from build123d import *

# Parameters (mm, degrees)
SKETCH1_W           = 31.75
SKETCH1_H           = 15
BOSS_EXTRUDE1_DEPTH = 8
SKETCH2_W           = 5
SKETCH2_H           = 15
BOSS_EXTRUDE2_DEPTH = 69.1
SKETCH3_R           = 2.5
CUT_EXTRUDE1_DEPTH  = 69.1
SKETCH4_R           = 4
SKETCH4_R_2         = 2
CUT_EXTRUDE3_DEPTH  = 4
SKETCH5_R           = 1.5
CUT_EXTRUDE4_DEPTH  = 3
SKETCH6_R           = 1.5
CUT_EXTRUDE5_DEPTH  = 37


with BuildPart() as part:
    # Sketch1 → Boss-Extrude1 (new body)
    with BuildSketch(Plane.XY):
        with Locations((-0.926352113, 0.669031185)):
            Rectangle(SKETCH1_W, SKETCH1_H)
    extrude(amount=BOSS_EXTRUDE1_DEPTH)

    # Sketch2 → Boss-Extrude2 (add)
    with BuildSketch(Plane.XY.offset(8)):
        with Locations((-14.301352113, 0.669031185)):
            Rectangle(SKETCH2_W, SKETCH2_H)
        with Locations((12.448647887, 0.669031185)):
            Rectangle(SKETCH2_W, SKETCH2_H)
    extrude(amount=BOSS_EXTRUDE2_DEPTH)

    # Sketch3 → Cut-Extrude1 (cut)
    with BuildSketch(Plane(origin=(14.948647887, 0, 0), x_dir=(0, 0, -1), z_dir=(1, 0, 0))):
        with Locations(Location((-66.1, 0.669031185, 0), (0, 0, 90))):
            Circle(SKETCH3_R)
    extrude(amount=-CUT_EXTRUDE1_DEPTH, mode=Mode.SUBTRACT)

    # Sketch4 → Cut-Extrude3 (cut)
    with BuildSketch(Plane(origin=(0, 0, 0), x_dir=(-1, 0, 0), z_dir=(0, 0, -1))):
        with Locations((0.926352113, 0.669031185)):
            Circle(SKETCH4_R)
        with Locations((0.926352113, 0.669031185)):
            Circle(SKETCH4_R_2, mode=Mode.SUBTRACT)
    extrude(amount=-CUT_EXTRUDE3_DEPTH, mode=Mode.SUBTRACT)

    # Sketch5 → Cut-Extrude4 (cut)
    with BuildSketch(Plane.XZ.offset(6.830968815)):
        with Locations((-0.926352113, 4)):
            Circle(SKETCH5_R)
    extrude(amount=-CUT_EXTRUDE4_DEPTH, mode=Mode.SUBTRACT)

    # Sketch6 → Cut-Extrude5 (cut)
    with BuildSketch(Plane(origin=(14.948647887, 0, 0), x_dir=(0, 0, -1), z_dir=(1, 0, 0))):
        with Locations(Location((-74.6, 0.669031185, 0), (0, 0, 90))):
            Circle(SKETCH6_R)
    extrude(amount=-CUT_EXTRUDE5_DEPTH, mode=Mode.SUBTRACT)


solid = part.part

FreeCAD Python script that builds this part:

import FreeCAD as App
import Part
import Sketcher
from FreeCAD import Vector
Q = App.Units.Quantity

doc = App.newDocument("Part")
body = doc.addObject("PartDesign::Body", "Body")

# Sketch on XY plane
sketch1 = doc.addObject("Sketcher::SketchObject", "Sketch")
body.addObject(sketch1)
sketch1.AttachmentSupport = (doc.XY_Plane, [""])
sketch1.MapMode = "FlatFace"
sketch1.addGeometry(Part.LineSegment(Vector(-17, 8, 0), Vector(-17, -7, 0)), False)
sketch1.addGeometry(Part.LineSegment(Vector(-17, -7, 0), Vector(15, -7, 0)), False)
sketch1.addGeometry(Part.LineSegment(Vector(15, -7, 0), Vector(15, 8, 0)), False)
sketch1.addGeometry(Part.LineSegment(Vector(15, 8, 0), Vector(-17, 8, 0)), False)
sketch1.addConstraint(Sketcher.Constraint("Coincident", 0, 2, 1, 1))
sketch1.addConstraint(Sketcher.Constraint("Coincident", 1, 2, 2, 1))
sketch1.addConstraint(Sketcher.Constraint("Coincident", 2, 2, 3, 1))
sketch1.addConstraint(Sketcher.Constraint("Coincident", 3, 2, 0, 1))
sketch1.addConstraint(Sketcher.Constraint("Vertical", 0))
sketch1.addConstraint(Sketcher.Constraint("Horizontal", 1))
sketch1.addConstraint(Sketcher.Constraint("Vertical", 2))
sketch1.addConstraint(Sketcher.Constraint("Horizontal", 3))
sketch1.addConstraint(Sketcher.Constraint("DistanceY", 0, 2, 0, 1, Q("15 mm")))
sketch1.addConstraint(Sketcher.Constraint("DistanceX", 1, 1, 1, 2, Q("31.75 mm")))
sketch1.addConstraint(Sketcher.Constraint("DistanceY", 0, 2, -1, 1, Q("6.830969 mm")))
sketch1.addConstraint(Sketcher.Constraint("DistanceX", 0, 2, -1, 1, Q("16.801352 mm")))
pad1 = doc.addObject("PartDesign::Pad", "Pad")
body.addObject(pad1)
pad1.Profile = sketch1
pad1.Length = 8

# Sketch on XY plane
sketch2 = doc.addObject("Sketcher::SketchObject", "Sketch001")
body.addObject(sketch2)
sketch2.AttachmentSupport = (doc.XY_Plane, [""])
sketch2.MapMode = "FlatFace"
sketch2.AttachmentOffset = App.Placement(Vector(0, 0, 8), App.Rotation())
sketch2.addGeometry(Part.LineSegment(Vector(-17, 8, 0), Vector(-17, -7, 0)), False)
sketch2.addGeometry(Part.LineSegment(Vector(-17, -7, 0), Vector(-12, -7, 0)), False)
sketch2.addGeometry(Part.LineSegment(Vector(-12, -7, 0), Vector(-12, 8, 0)), False)
sketch2.addGeometry(Part.LineSegment(Vector(-12, 8, 0), Vector(-17, 8, 0)), False)
sketch2.addGeometry(Part.LineSegment(Vector(10, 8, 0), Vector(10, -7, 0)), False)
sketch2.addGeometry(Part.LineSegment(Vector(10, -7, 0), Vector(15, -7, 0)), False)
sketch2.addGeometry(Part.LineSegment(Vector(15, -7, 0), Vector(15, 8, 0)), False)
sketch2.addGeometry(Part.LineSegment(Vector(15, 8, 0), Vector(10, 8, 0)), False)
sketch2.addConstraint(Sketcher.Constraint("Coincident", 0, 2, 1, 1))
sketch2.addConstraint(Sketcher.Constraint("Coincident", 1, 2, 2, 1))
sketch2.addConstraint(Sketcher.Constraint("Coincident", 2, 2, 3, 1))
sketch2.addConstraint(Sketcher.Constraint("Coincident", 3, 2, 0, 1))
sketch2.addConstraint(Sketcher.Constraint("Coincident", 4, 2, 5, 1))
sketch2.addConstraint(Sketcher.Constraint("Coincident", 5, 2, 6, 1))
sketch2.addConstraint(Sketcher.Constraint("Coincident", 6, 2, 7, 1))
sketch2.addConstraint(Sketcher.Constraint("Coincident", 7, 2, 4, 1))
sketch2.addConstraint(Sketcher.Constraint("Vertical", 0))
sketch2.addConstraint(Sketcher.Constraint("Horizontal", 1))
sketch2.addConstraint(Sketcher.Constraint("Vertical", 2))
sketch2.addConstraint(Sketcher.Constraint("Horizontal", 3))
sketch2.addConstraint(Sketcher.Constraint("Vertical", 4))
sketch2.addConstraint(Sketcher.Constraint("Horizontal", 5))
sketch2.addConstraint(Sketcher.Constraint("Vertical", 6))
sketch2.addConstraint(Sketcher.Constraint("Horizontal", 7))
sketch2.addConstraint(Sketcher.Constraint("Horizontal", 1, 2, 4, 2))
sketch2.addConstraint(Sketcher.Constraint("Horizontal", 3, 2, 6, 2))
sketch2.addConstraint(Sketcher.Constraint("Equal", 3, 5))
sketch2.addConstraint(Sketcher.Constraint("DistanceX", 1, 1, 1, 2, Q("5 mm")))
sketch2.addConstraint(Sketcher.Constraint("DistanceY", 0, 2, 0, 1, Q("15 mm")))
sketch2.addConstraint(Sketcher.Constraint("DistanceX", 1, 2, 4, 2, Q("21.75 mm")))
sketch2.addConstraint(Sketcher.Constraint("DistanceY", 0, 2, -1, 1, Q("6.830969 mm")))
sketch2.addConstraint(Sketcher.Constraint("DistanceX", 0, 2, -1, 1, Q("16.801352 mm")))
pad2 = doc.addObject("PartDesign::Pad", "Pad001")
body.addObject(pad2)
pad2.Profile = sketch2
pad2.Length = 69.1

# Sketch on YZ plane
sketch3 = doc.addObject("Sketcher::SketchObject", "Sketch002")
body.addObject(sketch3)
sketch3.AttachmentSupport = (doc.YZ_Plane, [""])
sketch3.MapMode = "FlatFace"
sketch3.AttachmentOffset = App.Placement(Vector(0, 0, 14.948648), App.Rotation())
sketch3.addGeometry(Part.Circle(Vector(0.7, 66.1, 0), Vector(0, 0, 1), 2.5), False)
sketch3.addConstraint(Sketcher.Constraint("Diameter", 0, Q("5 mm")))
sketch3.addConstraint(Sketcher.Constraint("DistanceY", -1, 1, 0, 3, Q("66.1 mm")))
sketch3.addConstraint(Sketcher.Constraint("DistanceX", -1, 1, 0, 3, Q("0.669031 mm")))
pocket1 = doc.addObject("PartDesign::Pocket", "Pocket")
body.addObject(pocket1)
pocket1.Profile = sketch3
pocket1.Length = 69.1

# Sketch on XY plane
sketch4 = doc.addObject("Sketcher::SketchObject", "Sketch003")
body.addObject(sketch4)
sketch4.AttachmentSupport = (doc.XY_Plane, [""])
sketch4.MapMode = "FlatFace"
sketch4.addGeometry(Part.Circle(Vector(-0.9, 0.7, 0), Vector(0, 0, 1), 4), False)
sketch4.addGeometry(Part.Circle(Vector(-0.9, 0.7, 0), Vector(0, 0, 1), 2), False)
sketch4.addConstraint(Sketcher.Constraint("Coincident", 1, 3, 0, 3))
sketch4.addConstraint(Sketcher.Constraint("Diameter", 0, Q("8 mm")))
sketch4.addConstraint(Sketcher.Constraint("Diameter", 1, Q("4 mm")))
sketch4.addConstraint(Sketcher.Constraint("DistanceY", -1, 1, 0, 3, Q("0.669031 mm")))
sketch4.addConstraint(Sketcher.Constraint("DistanceX", 0, 3, -1, 1, Q("0.926352 mm")))
pocket2 = doc.addObject("PartDesign::Pocket", "Pocket001")
body.addObject(pocket2)
pocket2.Profile = sketch4
pocket2.Length = 4
pocket2.Reversed = True

# Sketch on XZ plane
sketch5 = doc.addObject("Sketcher::SketchObject", "Sketch004")
body.addObject(sketch5)
sketch5.AttachmentSupport = (doc.XZ_Plane, [""])
sketch5.MapMode = "FlatFace"
sketch5.AttachmentOffset = App.Placement(Vector(0, 0, 6.830969), App.Rotation())
sketch5.addGeometry(Part.Circle(Vector(-0.9, 4, 0), Vector(0, 0, 1), 1.5), False)
sketch5.addConstraint(Sketcher.Constraint("Diameter", 0, Q("3 mm")))
sketch5.addConstraint(Sketcher.Constraint("DistanceY", -1, 1, 0, 3, Q("4 mm")))
sketch5.addConstraint(Sketcher.Constraint("DistanceX", 0, 3, -1, 1, Q("0.926352 mm")))
pocket3 = doc.addObject("PartDesign::Pocket", "Pocket002")
body.addObject(pocket3)
pocket3.Profile = sketch5
pocket3.Length = 3

# Sketch on YZ plane
sketch6 = doc.addObject("Sketcher::SketchObject", "Sketch005")
body.addObject(sketch6)
sketch6.AttachmentSupport = (doc.YZ_Plane, [""])
sketch6.MapMode = "FlatFace"
sketch6.AttachmentOffset = App.Placement(Vector(0, 0, 14.948648), App.Rotation())
sketch6.addGeometry(Part.Circle(Vector(0.7, 74.6, 0), Vector(0, 0, 1), 1.5), False)
sketch6.addConstraint(Sketcher.Constraint("Diameter", 0, Q("3 mm")))
sketch6.addConstraint(Sketcher.Constraint("DistanceY", -1, 1, 0, 3, Q("74.6 mm")))
sketch6.addConstraint(Sketcher.Constraint("DistanceX", -1, 1, 0, 3, Q("0.669031 mm")))
pocket4 = doc.addObject("PartDesign::Pocket", "Pocket003")
body.addObject(pocket4)
pocket4.Profile = sketch6
pocket4.Length = 37

doc.recompute()
